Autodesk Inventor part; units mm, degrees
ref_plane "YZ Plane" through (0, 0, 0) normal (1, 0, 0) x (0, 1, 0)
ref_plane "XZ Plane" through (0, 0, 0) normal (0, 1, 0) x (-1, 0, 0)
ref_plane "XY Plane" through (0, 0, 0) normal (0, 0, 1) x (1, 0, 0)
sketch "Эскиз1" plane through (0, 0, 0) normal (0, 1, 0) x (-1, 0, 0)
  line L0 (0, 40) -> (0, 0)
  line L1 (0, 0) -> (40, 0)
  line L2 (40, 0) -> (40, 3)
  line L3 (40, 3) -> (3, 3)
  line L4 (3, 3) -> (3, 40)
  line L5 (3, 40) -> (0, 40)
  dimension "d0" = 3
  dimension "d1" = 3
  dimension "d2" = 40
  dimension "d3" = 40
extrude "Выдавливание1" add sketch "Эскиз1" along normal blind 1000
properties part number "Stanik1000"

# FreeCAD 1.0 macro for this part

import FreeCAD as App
import Part
import Sketcher

doc = App.newDocument("Part")
body = doc.addObject("PartDesign::Body", "Body")

# Sketch on XZ plane
sketch1 = doc.addObject("Sketcher::SketchObject", "Sketch")
body.addObject(sketch1)
sketch1.AttachmentSupport = (doc.XZ_Plane, [""])
sketch1.MapMode = "FlatFace"
sketch1.addGeometry([
    Part.LineSegment(App.Vector(-3, 40, 0), App.Vector(0, 40, 0)),  # 0
    Part.LineSegment(App.Vector(0, 40, 0), App.Vector(0, 0, 0)),  # 1
    Part.LineSegment(App.Vector(0, 0, 0), App.Vector(-40, 0, 0)),  # 2
    Part.LineSegment(App.Vector(-40, 0, 0), App.Vector(-40, 3, 0)),  # 3
    Part.LineSegment(App.Vector(-40, 3, 0), App.Vector(-3, 3, 0)),  # 4
    Part.LineSegment(App.Vector(-3, 3, 0), App.Vector(-3, 40, 0)),  # 5
], False)
sketch1.addConstraint([
    Sketcher.Constraint("Coincident", 0, 2, 1, 1),
    Sketcher.Constraint("Coincident", 1, 2, 2, 1),
    Sketcher.Constraint("Coincident", 2, 2, 3, 1),
    Sketcher.Constraint("Coincident", 3, 2, 4, 1),
    Sketcher.Constraint("Coincident", 4, 2, 5, 1),
    Sketcher.Constraint("Coincident", 5, 2, 0, 1),
    Sketcher.Constraint("Horizontal", 0),
    Sketcher.Constraint("Vertical", 1),
    Sketcher.Constraint("Horizontal", 2),
    Sketcher.Constraint("Vertical", 3),
    Sketcher.Constraint("Horizontal", 4),
    Sketcher.Constraint("Vertical", 5),
    Sketcher.Constraint("Coincident", 1, 2, -1, 1),
    Sketcher.Constraint("Equal", 2, 1),
    Sketcher.Constraint("Equal", 0, 3),
    Sketcher.Constraint("DistanceX", 0, 1, 0, 2, 3.0),
    Sketcher.Constraint("DistanceX", 2, 2, 2, 1, 40.0),
])
pad1 = doc.addObject("PartDesign::Pad", "Pad")
body.addObject(pad1)
pad1.Profile = sketch1
pad1.Length = 1000
pad1.Reversed = True

doc.recompute()
